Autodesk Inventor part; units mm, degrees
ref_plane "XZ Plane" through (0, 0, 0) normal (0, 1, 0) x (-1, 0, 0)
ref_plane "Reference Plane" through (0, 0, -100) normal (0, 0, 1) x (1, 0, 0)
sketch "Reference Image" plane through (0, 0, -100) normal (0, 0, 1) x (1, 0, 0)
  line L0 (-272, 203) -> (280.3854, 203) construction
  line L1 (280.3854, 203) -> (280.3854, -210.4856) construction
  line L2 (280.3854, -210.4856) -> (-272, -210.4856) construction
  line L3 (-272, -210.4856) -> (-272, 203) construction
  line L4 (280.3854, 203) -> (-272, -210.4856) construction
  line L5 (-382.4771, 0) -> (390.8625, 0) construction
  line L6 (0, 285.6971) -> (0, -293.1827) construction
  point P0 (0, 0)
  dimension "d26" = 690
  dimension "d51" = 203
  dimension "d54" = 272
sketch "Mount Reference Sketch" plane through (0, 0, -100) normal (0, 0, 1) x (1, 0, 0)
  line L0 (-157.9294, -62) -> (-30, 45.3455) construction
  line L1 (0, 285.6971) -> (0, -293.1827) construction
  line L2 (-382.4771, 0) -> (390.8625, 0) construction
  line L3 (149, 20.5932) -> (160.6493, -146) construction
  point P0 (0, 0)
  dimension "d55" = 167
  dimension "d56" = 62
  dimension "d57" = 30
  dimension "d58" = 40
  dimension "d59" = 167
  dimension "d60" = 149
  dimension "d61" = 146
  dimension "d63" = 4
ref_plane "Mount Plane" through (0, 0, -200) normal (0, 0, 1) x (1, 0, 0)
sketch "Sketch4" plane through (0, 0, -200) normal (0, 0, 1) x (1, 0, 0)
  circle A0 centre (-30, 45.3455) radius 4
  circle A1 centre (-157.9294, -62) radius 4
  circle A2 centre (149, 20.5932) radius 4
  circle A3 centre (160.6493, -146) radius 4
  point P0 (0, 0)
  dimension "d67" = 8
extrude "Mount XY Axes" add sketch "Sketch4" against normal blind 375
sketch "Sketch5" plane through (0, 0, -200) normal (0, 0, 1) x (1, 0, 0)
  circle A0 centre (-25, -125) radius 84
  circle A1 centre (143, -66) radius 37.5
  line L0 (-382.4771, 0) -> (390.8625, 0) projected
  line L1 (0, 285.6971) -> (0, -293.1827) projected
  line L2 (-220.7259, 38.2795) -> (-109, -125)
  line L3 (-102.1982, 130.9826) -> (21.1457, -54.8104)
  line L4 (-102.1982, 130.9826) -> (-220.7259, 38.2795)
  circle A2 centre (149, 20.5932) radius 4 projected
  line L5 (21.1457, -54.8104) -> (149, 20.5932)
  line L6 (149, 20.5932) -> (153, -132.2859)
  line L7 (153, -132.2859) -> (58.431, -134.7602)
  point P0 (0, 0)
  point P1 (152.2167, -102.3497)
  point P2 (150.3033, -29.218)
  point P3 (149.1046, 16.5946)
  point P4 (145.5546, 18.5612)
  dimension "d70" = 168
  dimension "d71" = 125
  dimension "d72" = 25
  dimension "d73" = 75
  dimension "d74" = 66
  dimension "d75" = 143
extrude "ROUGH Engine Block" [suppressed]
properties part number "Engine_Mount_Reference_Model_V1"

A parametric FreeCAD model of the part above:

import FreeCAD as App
import Part
import Sketcher
from FreeCAD import Vector

doc = App.newDocument("Part")
body = doc.addObject("PartDesign::Body", "Body")
body.AllowCompound = True

# Sketch on XY plane
sketch1 = body.newObject("Sketcher::SketchObject", "Sketch")
sketch1.AttachmentSupport = (doc.getObject("XY_Plane"), [""])
sketch1.MapMode = "FlatFace"
sketch1.AttachmentOffset = App.Placement(Vector(0, 0, -200), App.Rotation())
sketch1.addGeometry([
    Part.Circle(Vector(-30, 45.3, 0), Vector(0, 0, 1), 4),
    Part.Circle(Vector(-157.9, -62, 0), Vector(0, 0, 1), 4),
    Part.Circle(Vector(149, 20.6, 0), Vector(0, 0, 1), 4),
    Part.Circle(Vector(160.6, -146, 0), Vector(0, 0, 1), 4),
], False)
sketch1.addConstraint([
    Sketcher.Constraint("Equal", 0, 1),
    Sketcher.Constraint("Equal", 1, 2),
    Sketcher.Constraint("Equal", 2, 3),
    Sketcher.Constraint("Diameter", 0, 8.0),
    Sketcher.Constraint("DistanceX", 0, 3, -1, 1, 30.0),
    Sketcher.Constraint("DistanceY", 1, 3, -1, 1, 62.0),
    Sketcher.Constraint("DistanceX", -1, 1, 2, 3, 149.0),
    Sketcher.Constraint("DistanceY", 3, 3, -1, 1, 146.0),
    Sketcher.Constraint("DistanceY", -1, 1, 0, 3, 45.3455),
    Sketcher.Constraint("DistanceX", 1, 3, -1, 1, 157.9294),
    Sketcher.Constraint("DistanceY", -1, 1, 2, 3, 20.5932),
    Sketcher.Constraint("DistanceX", -1, 1, 3, 3, 160.6493),
])
pad1 = body.newObject("PartDesign::Pad", "Pad")
pad1.Profile = sketch1
pad1.Length = 375
pad1.Reversed = True

doc.recompute()
